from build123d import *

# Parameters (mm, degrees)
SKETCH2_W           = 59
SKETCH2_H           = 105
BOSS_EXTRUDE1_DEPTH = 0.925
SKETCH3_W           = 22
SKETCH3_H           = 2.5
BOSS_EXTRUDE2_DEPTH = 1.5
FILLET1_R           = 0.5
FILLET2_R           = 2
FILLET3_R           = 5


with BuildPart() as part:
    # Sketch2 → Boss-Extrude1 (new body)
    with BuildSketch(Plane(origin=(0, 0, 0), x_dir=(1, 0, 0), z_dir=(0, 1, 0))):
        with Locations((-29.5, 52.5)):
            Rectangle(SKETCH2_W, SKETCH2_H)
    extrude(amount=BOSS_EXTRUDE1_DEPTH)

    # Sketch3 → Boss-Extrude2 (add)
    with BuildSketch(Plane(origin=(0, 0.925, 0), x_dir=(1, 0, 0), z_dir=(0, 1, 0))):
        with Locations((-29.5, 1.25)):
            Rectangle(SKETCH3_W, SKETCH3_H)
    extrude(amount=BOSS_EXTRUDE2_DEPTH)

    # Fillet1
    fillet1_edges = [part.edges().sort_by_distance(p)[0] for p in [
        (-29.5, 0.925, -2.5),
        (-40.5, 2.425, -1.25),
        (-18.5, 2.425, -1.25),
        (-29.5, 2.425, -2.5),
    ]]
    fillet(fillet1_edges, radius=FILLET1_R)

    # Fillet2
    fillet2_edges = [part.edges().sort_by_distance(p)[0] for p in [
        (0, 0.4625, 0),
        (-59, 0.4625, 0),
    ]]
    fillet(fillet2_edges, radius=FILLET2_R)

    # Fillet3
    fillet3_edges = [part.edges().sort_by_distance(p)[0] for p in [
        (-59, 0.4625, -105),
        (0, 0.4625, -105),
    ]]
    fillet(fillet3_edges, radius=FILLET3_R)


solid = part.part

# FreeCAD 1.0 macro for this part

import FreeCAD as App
import Part
import Sketcher
Q = App.Units.Quantity


def edges_at(feature, points):
    """Names of the edges that pass closest to the given points."""
    edges = feature.Shape.Edges
    near = lambda p: min(range(len(edges)), key=lambda i: edges[i].distToShape(Part.Vertex(*p))[0])
    return sorted({f"Edge{near(p) + 1}" for p in points})


def add_polygon(sketch, points):
    """Adds a closed chain of lines whose ends are joined by coincident constraints."""
    first, n = sketch.GeometryCount, len(points)
    for a, b in zip(points, points[1:] + points[:1]):
        sketch.addGeometry(Part.LineSegment(App.Vector(*a, 0), App.Vector(*b, 0)), False)
    for i in range(n):
        sketch.addConstraint(Sketcher.Constraint("Coincident", first + i, 2, first + (i + 1) % n, 1))

doc = App.newDocument("Part")
body = doc.addObject("PartDesign::Body", "Body")

# Sketch on XZ plane
sketch1 = body.newObject("Sketcher::SketchObject", "Sketch")
sketch1.AttachmentSupport = (doc.getObject("XZ_Plane"), [""])
sketch1.MapMode = "FlatFace"
add_polygon(sketch1, [(-59, -105), (-59, 0), (0, 0), (0, -105)])  # lines 0-3
sketch1.addConstraint([
    Sketcher.Constraint("Vertical", 0),
    Sketcher.Constraint("Horizontal", 1),
    Sketcher.Constraint("Vertical", 2),
    Sketcher.Constraint("Horizontal", 3),
    Sketcher.Constraint("Coincident", 1, 2, -1, 1),
    Sketcher.Constraint("DistanceX", 1, 1, 1, 2, Q("59 mm")),
    Sketcher.Constraint("DistanceY", 0, 1, 0, 2, Q("105 mm")),
])
pad1 = body.newObject("PartDesign::Pad", "Pad")
pad1.Profile = sketch1
pad1.Length = 0.925
pad1.Reversed = True

# Sketch on XZ plane
sketch2 = body.newObject("Sketcher::SketchObject", "Sketch001")
sketch2.AttachmentSupport = (doc.getObject("XZ_Plane"), [""])
sketch2.MapMode = "FlatFace"
sketch2.AttachmentOffset = App.Placement(App.Vector(0, 0, -0.925), App.Rotation())
add_polygon(sketch2, [(-40.5, -2.5), (-40.5, 0), (-18.5, 0), (-18.5, -2.5)])  # lines 0-3
sketch2.addConstraint([
    Sketcher.Constraint("Vertical", 0),
    Sketcher.Constraint("Horizontal", 1),
    Sketcher.Constraint("Vertical", 2),
    Sketcher.Constraint("Horizontal", 3),
    Sketcher.Constraint("PointOnObject", 0, 2, -1),
    Sketcher.Constraint("DistanceX", 1, 1, 1, 2, Q("22 mm")),
    Sketcher.Constraint("DistanceY", 0, 1, 0, 2, Q("2.5 mm")),
    Sketcher.Constraint("DistanceX", 0, 2, -1, 1, Q("40.5 mm")),
])
pad2 = body.newObject("PartDesign::Pad", "Pad001")
pad2.Profile = sketch2
pad2.Length = 1.5
pad2.Reversed = True
doc.recompute()

fillet = body.newObject("PartDesign::Fillet", "Fillet")
fillet.Base = (pad2, edges_at(pad2, [
    (-29.5, 0.925, -2.5),
    (-40.5, 2.425, -1.25),
    (-18.5, 2.425, -1.25),
    (-29.5, 2.425, -2.5),
]))
fillet.Radius = 0.5
doc.recompute()

fillet2 = body.newObject("PartDesign::Fillet", "Fillet001")
fillet2.Base = (fillet, edges_at(fillet, [(0, 0.463, 0), (-59, 0.463, 0)]))
fillet2.Radius = 2
doc.recompute()

fillet3 = body.newObject("PartDesign::Fillet", "Fillet002")
fillet3.Base = (fillet2, edges_at(fillet2, [(-59, 0.463, -105), (0, 0.463, -105)]))
fillet3.Radius = 5

doc.recompute()
